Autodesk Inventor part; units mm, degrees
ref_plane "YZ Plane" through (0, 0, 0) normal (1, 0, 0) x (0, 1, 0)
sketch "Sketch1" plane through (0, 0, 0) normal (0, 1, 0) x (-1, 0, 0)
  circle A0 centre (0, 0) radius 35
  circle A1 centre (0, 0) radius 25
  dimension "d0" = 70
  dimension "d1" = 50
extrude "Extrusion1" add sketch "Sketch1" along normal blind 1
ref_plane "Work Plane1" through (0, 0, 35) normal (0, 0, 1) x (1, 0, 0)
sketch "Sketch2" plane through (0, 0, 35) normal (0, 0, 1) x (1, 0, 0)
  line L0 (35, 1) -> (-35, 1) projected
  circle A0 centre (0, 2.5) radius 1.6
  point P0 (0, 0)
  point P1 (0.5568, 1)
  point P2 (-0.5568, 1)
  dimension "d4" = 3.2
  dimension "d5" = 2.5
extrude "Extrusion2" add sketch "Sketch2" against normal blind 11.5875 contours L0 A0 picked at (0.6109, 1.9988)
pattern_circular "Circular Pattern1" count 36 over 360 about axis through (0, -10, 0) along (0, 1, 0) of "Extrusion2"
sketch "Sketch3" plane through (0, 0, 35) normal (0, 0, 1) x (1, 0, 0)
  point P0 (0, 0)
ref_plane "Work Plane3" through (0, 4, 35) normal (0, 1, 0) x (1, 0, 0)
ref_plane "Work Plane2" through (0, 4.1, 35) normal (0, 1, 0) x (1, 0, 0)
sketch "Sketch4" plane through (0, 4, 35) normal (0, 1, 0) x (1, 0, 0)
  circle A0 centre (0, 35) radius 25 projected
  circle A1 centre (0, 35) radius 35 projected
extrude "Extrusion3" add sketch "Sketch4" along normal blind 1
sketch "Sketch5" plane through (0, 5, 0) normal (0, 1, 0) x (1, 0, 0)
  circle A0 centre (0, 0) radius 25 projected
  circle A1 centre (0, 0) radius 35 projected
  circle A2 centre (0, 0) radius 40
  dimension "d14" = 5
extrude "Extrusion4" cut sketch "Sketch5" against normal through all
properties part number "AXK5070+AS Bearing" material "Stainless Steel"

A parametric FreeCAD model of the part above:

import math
import FreeCAD as App
import Part
import Sketcher

V = App.Vector

doc = App.newDocument("Part")
body = doc.addObject("PartDesign::Body", "Body")

sketch1 = body.newObject("Sketcher::SketchObject", "Sketch")
sketch1.AttachmentSupport = (doc.getObject("XZ_Plane"), [""])
sketch1.MapMode = "FlatFace"
sketch1.addGeometry([
    Part.Circle(V(0, 0, 0), V(0, 0, 1), 35),
    Part.Circle(V(0, 0, 0), V(0, 0, 1), 25),
], False)
sketch1.addConstraint([
    Sketcher.Constraint("Coincident", 0, 3, -1, 1),
    Sketcher.Constraint("Coincident", 1, 3, -1, 1),
    Sketcher.Constraint("Diameter", 0, 70.0),
    Sketcher.Constraint("Diameter", 1, 50.0),
])
pad1 = body.newObject("PartDesign::Pad", "Pad")
pad1.Profile = sketch1
pad1.Length = 1
pad1.Reversed = True

sketch2 = body.newObject("Sketcher::SketchObject", "Sketch001")
sketch2.AttachmentSupport = (doc.getObject("XY_Plane"), [""])
sketch2.MapMode = "FlatFace"
sketch2.AttachmentOffset = App.Placement(V(0, 0, 35), App.Rotation())
sketch2.addGeometry([
    Part.LineSegment(V(-0.6, 1, 0), V(0.6, 1, 0)),
    Part.ArcOfCircle(Part.Circle(V(0, 2.5, 0), V(0, 0, 1), 1.6), math.radians(-70), math.radians(250)),
], False)
sketch2.addConstraint([
    Sketcher.Constraint("Coincident", 0, 1, 1, 2),
    Sketcher.Constraint("Coincident", 1, 1, 0, 2),
    Sketcher.Constraint("Horizontal", 0),
    Sketcher.Constraint("PointOnObject", 1, 3, -2),
    Sketcher.Constraint("Radius", 1, 1.6),
    Sketcher.Constraint("DistanceY", -1, 1, 1, 3, 2.5),
    Sketcher.Constraint("DistanceY", -1, 1, 0, 1, 1.0),
])
pad2 = body.newObject("PartDesign::Pad", "Pad001")
pad2.Profile = sketch2
pad2.Length = 11.5875
pad2.Reversed = True
doc.recompute()

polarpattern = body.newObject("PartDesign::PolarPattern", "PolarPattern")
polarpattern.Originals = [pad2]
polarpattern.Axis = (doc.getObject("Y_Axis"), [""])
polarpattern.Angle = 360
polarpattern.Occurrences = 36
body.Tip = polarpattern

sketch3 = body.newObject("Sketcher::SketchObject", "Sketch002")
sketch3.AttachmentSupport = (doc.getObject("XZ_Plane"), [""])
sketch3.MapMode = "FlatFace"
sketch3.AttachmentOffset = App.Placement(V(0, 0, -4), App.Rotation())
sketch3.addGeometry([
    Part.Circle(V(0, 0, 0), V(0, 0, 1), 35),
    Part.Circle(V(0, 0, 0), V(0, 0, 1), 25),
], False)
sketch3.addConstraint([
    Sketcher.Constraint("Coincident", 0, 3, -1, 1),
    Sketcher.Constraint("Coincident", 1, 3, -1, 1),
    Sketcher.Constraint("Diameter", 0, 70.0),
    Sketcher.Constraint("Diameter", 1, 50.0),
])
pad3 = body.newObject("PartDesign::Pad", "Pad002")
pad3.Profile = sketch3
pad3.Length = 1
pad3.Reversed = True

sketch4 = body.newObject("Sketcher::SketchObject", "Sketch003")
sketch4.AttachmentSupport = (doc.getObject("XZ_Plane"), [""])
sketch4.MapMode = "FlatFace"
sketch4.AttachmentOffset = App.Placement(V(0, 0, -5), App.Rotation())
sketch4.addGeometry([
    Part.Circle(V(0, 0, 0), V(0, 0, 1), 25),
    Part.Circle(V(0, 0, 0), V(0, 0, 1), 40),
    Part.Circle(V(0, 0, 0), V(0, 0, 1), 35),
], False)
sketch4.addConstraint([
    Sketcher.Constraint("Coincident", 0, 3, -1, 1),
    Sketcher.Constraint("Coincident", 1, 3, -1, 1),
    Sketcher.Constraint("Coincident", 2, 3, -1, 1),
    Sketcher.Constraint("Diameter", 0, 50.0),
    Sketcher.Constraint("Diameter", 1, 80.0),
    Sketcher.Constraint("Diameter", 2, 70.0),
])
pocket1 = body.newObject("PartDesign::Pocket", "Pocket")
pocket1.Profile = sketch4
pocket1.Type = "ThroughAll"
pocket1.Reversed = True

doc.recompute()
